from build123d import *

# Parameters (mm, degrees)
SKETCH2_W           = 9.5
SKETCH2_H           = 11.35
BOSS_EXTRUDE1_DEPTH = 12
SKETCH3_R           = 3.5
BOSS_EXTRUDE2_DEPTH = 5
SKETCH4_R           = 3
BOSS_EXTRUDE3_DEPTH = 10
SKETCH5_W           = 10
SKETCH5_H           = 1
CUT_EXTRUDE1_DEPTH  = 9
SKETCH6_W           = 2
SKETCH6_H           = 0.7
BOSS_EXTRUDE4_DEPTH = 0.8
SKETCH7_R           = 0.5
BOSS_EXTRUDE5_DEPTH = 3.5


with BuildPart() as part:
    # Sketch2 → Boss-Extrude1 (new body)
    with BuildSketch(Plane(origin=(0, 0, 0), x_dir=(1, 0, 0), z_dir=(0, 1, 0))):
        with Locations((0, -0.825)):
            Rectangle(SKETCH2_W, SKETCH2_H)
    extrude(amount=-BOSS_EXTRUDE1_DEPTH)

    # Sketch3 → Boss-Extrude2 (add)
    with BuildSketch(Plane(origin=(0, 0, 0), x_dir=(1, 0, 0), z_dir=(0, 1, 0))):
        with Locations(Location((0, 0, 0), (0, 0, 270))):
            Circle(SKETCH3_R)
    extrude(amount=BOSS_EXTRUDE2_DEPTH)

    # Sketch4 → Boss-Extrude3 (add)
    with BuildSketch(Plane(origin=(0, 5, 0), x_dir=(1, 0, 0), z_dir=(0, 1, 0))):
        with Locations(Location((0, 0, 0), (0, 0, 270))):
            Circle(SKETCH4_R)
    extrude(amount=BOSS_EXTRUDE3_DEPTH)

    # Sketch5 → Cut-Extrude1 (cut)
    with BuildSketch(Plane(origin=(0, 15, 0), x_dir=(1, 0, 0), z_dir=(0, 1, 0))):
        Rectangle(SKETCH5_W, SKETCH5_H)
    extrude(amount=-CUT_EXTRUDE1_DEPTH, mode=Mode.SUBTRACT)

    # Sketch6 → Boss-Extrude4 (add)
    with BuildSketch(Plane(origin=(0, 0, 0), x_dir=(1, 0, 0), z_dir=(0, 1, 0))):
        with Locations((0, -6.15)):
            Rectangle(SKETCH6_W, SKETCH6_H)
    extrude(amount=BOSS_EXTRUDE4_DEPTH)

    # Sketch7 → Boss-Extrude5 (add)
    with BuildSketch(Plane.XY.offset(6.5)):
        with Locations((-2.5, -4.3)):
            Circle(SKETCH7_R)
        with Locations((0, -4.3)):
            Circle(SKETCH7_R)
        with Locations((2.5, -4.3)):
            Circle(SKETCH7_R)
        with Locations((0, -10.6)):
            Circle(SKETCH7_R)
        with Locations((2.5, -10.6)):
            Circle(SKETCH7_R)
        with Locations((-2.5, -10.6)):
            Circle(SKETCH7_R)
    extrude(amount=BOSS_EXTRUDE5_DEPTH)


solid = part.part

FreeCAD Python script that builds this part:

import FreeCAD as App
import Part
import Sketcher
Q = App.Units.Quantity

doc = App.newDocument("Part")
body = doc.addObject("PartDesign::Body", "Body")

# Sketch on XZ plane
sketch1 = body.newObject("Sketcher::SketchObject", "Sketch")
sketch1.AttachmentSupport = (doc.getObject("XZ_Plane"), [""])
sketch1.MapMode = "FlatFace"
sketch1.addGeometry(Part.LineSegment(App.Vector(-5, -5, 0), App.Vector(-5, 6, 0)), False)
sketch1.addGeometry(Part.LineSegment(App.Vector(-5, 6, 0), App.Vector(5, 6, 0)), False)
sketch1.addGeometry(Part.LineSegment(App.Vector(5, 6, 0), App.Vector(5, -5, 0)), False)
sketch1.addGeometry(Part.LineSegment(App.Vector(5, -5, 0), App.Vector(-5, -5, 0)), False)
sketch1.addConstraint(Sketcher.Constraint("Coincident", 0, 2, 1, 1))
sketch1.addConstraint(Sketcher.Constraint("Coincident", 1, 2, 2, 1))
sketch1.addConstraint(Sketcher.Constraint("Coincident", 2, 2, 3, 1))
sketch1.addConstraint(Sketcher.Constraint("Coincident", 3, 2, 0, 1))
sketch1.addConstraint(Sketcher.Constraint("Vertical", 0))
sketch1.addConstraint(Sketcher.Constraint("Horizontal", 1))
sketch1.addConstraint(Sketcher.Constraint("Vertical", 2))
sketch1.addConstraint(Sketcher.Constraint("Horizontal", 3))
sketch1.addConstraint(Sketcher.Constraint("DistanceX", 1, 1, 1, 2, Q("9.5 mm")))
sketch1.addConstraint(Sketcher.Constraint("DistanceY", 0, 1, 0, 2, Q("11.35 mm")))
sketch1.addConstraint(Sketcher.Constraint("DistanceY", -1, 1, 0, 2, Q("6.5 mm")))
sketch1.addConstraint(Sketcher.Constraint("DistanceX", 0, 2, -1, 1, Q("4.75 mm")))
pad1 = body.newObject("PartDesign::Pad", "Pad")
pad1.Profile = sketch1
pad1.Length = 12

# Sketch on XZ plane
sketch2 = body.newObject("Sketcher::SketchObject", "Sketch001")
sketch2.AttachmentSupport = (doc.getObject("XZ_Plane"), [""])
sketch2.MapMode = "FlatFace"
sketch2.addGeometry(Part.Circle(App.Vector(0, 0, 0), App.Vector(0, 0, 1), 3.5), False)
sketch2.addConstraint(Sketcher.Constraint("Coincident", 0, 3, -1, 1))
sketch2.addConstraint(Sketcher.Constraint("Diameter", 0, Q("7 mm")))
pad2 = body.newObject("PartDesign::Pad", "Pad001")
pad2.Profile = sketch2
pad2.Length = 5
pad2.Reversed = True

# Sketch on XZ plane
sketch3 = body.newObject("Sketcher::SketchObject", "Sketch002")
sketch3.AttachmentSupport = (doc.getObject("XZ_Plane"), [""])
sketch3.MapMode = "FlatFace"
sketch3.AttachmentOffset = App.Placement(App.Vector(0, 0, -5), App.Rotation())
sketch3.addGeometry(Part.Circle(App.Vector(0, 0, 0), App.Vector(0, 0, 1), 3), False)
sketch3.addConstraint(Sketcher.Constraint("Coincident", 0, 3, -1, 1))
sketch3.addConstraint(Sketcher.Constraint("Diameter", 0, Q("6 mm")))
pad3 = body.newObject("PartDesign::Pad", "Pad002")
pad3.Profile = sketch3
pad3.Length = 10
pad3.Reversed = True

# Sketch on XZ plane
sketch4 = body.newObject("Sketcher::SketchObject", "Sketch003")
sketch4.AttachmentSupport = (doc.getObject("XZ_Plane"), [""])
sketch4.MapMode = "FlatFace"
sketch4.AttachmentOffset = App.Placement(App.Vector(0, 0, -15), App.Rotation())
sketch4.addGeometry(Part.LineSegment(App.Vector(-5, -0.5, 0), App.Vector(-5, 0.5, 0)), False)
sketch4.addGeometry(Part.LineSegment(App.Vector(-5, 0.5, 0), App.Vector(5, 0.5, 0)), False)
sketch4.addGeometry(Part.LineSegment(App.Vector(5, 0.5, 0), App.Vector(5, -0.5, 0)), False)
sketch4.addGeometry(Part.LineSegment(App.Vector(5, -0.5, 0), App.Vector(-5, -0.5, 0)), False)
sketch4.addConstraint(Sketcher.Constraint("Coincident", 0, 2, 1, 1))
sketch4.addConstraint(Sketcher.Constraint("Coincident", 1, 2, 2, 1))
sketch4.addConstraint(Sketcher.Constraint("Coincident", 2, 2, 3, 1))
sketch4.addConstraint(Sketcher.Constraint("Coincident", 3, 2, 0, 1))
sketch4.addConstraint(Sketcher.Constraint("Vertical", 0))
sketch4.addConstraint(Sketcher.Constraint("Horizontal", 1))
sketch4.addConstraint(Sketcher.Constraint("Vertical", 2))
sketch4.addConstraint(Sketcher.Constraint("Horizontal", 3))
sketch4.addConstraint(Sketcher.Constraint("Symmetric", 0, 2, 2, 2, -1, 1))
sketch4.addConstraint(Sketcher.Constraint("DistanceX", 1, 1, 1, 2, Q("10 mm")))
sketch4.addConstraint(Sketcher.Constraint("DistanceY", 0, 1, 0, 2, Q("1 mm")))
pocket1 = body.newObject("PartDesign::Pocket", "Pocket")
pocket1.Profile = sketch4
pocket1.Length = 9
pocket1.Reversed = True

# Sketch on XZ plane
sketch5 = body.newObject("Sketcher::SketchObject", "Sketch004")
sketch5.AttachmentSupport = (doc.getObject("XZ_Plane"), [""])
sketch5.MapMode = "FlatFace"
sketch5.addGeometry(Part.LineSegment(App.Vector(-1, 5.8, 0), App.Vector(-1, 6.5, 0)), False)
sketch5.addGeometry(Part.LineSegment(App.Vector(-1, 6.5, 0), App.Vector(1, 6.5, 0)), False)
sketch5.addGeometry(Part.LineSegment(App.Vector(1, 6.5, 0), App.Vector(1, 5.8, 0)), False)
sketch5.addGeometry(Part.LineSegment(App.Vector(1, 5.8, 0), App.Vector(-1, 5.8, 0)), False)
sketch5.addConstraint(Sketcher.Constraint("Coincident", 0, 2, 1, 1))
sketch5.addConstraint(Sketcher.Constraint("Coincident", 1, 2, 2, 1))
sketch5.addConstraint(Sketcher.Constraint("Coincident", 2, 2, 3, 1))
sketch5.addConstraint(Sketcher.Constraint("Coincident", 3, 2, 0, 1))
sketch5.addConstraint(Sketcher.Constraint("Vertical", 0))
sketch5.addConstraint(Sketcher.Constraint("Horizontal", 1))
sketch5.addConstraint(Sketcher.Constraint("Vertical", 2))
sketch5.addConstraint(Sketcher.Constraint("Horizontal", 3))
sketch5.addConstraint(Sketcher.Constraint("DistanceX", 1, 1, 1, 2, Q("2 mm")))
sketch5.addConstraint(Sketcher.Constraint("DistanceY", 0, 1, 0, 2, Q("0.7 mm")))
sketch5.addConstraint(Sketcher.Constraint("DistanceX", 0, 2, -1, 1, Q("1 mm")))
sketch5.addConstraint(Sketcher.Constraint("DistanceY", -1, 1, 0, 2, Q("6.5 mm")))
pad4 = body.newObject("PartDesign::Pad", "Pad003")
pad4.Profile = sketch5
pad4.Length = 0.8
pad4.Reversed = True

# Sketch on XY plane
sketch6 = body.newObject("Sketcher::SketchObject", "Sketch005")
sketch6.AttachmentSupport = (doc.getObject("XY_Plane"), [""])
sketch6.MapMode = "FlatFace"
sketch6.AttachmentOffset = App.Placement(App.Vector(0, 0, 6.5), App.Rotation())
sketch6.addGeometry(Part.Circle(App.Vector(-2.5, -4.3, 0), App.Vector(0, 0, 1), 0.5), False)
sketch6.addGeometry(Part.Circle(App.Vector(0, -4.3, 0), App.Vector(0, 0, 1), 0.5), False)
sketch6.addGeometry(Part.Circle(App.Vector(2.5, -4.3, 0), App.Vector(0, 0, 1), 0.5), False)
sketch6.addGeometry(Part.Circle(App.Vector(0, -10.6, 0), App.Vector(0, 0, 1), 0.5), False)
sketch6.addGeometry(Part.Circle(App.Vector(2.5, -10.6, 0), App.Vector(0, 0, 1), 0.5), False)
sketch6.addGeometry(Part.Circle(App.Vector(-2.5, -10.6, 0), App.Vector(0, 0, 1), 0.5), False)
sketch6.addConstraint(Sketcher.Constraint("Equal", 0, 1))
sketch6.addConstraint(Sketcher.Constraint("Equal", 1, 2))
sketch6.addConstraint(Sketcher.Constraint("Equal", 2, 3))
sketch6.addConstraint(Sketcher.Constraint("Equal", 3, 4))
sketch6.addConstraint(Sketcher.Constraint("Equal", 4, 5))
sketch6.addConstraint(Sketcher.Constraint("Symmetric", 0, 3, 2, 3, -2))
sketch6.addConstraint(Sketcher.Constraint("Symmetric", 4, 3, 5, 3, -2))
sketch6.addConstraint(Sketcher.Constraint("PointOnObject", 1, 3, -2))
sketch6.addConstraint(Sketcher.Constraint("PointOnObject", 3, 3, -2))
sketch6.addConstraint(Sketcher.Constraint("Horizontal", 0, 3, 1, 3))
sketch6.addConstraint(Sketcher.Constraint("Horizontal", 3, 3, 4, 3))
sketch6.addConstraint(Sketcher.Constraint("Vertical", 2, 3, 4, 3))
sketch6.addConstraint(Sketcher.Constraint("Diameter", 0, Q("1 mm")))
sketch6.addConstraint(Sketcher.Constraint("DistanceX", 0, 3, 2, 3, Q("5 mm")))
sketch6.addConstraint(Sketcher.Constraint("DistanceY", 0, 3, -1, 1, Q("4.3 mm")))
sketch6.addConstraint(Sketcher.Constraint("DistanceY", 3, 3, -1, 1, Q("10.6 mm")))
pad5 = body.newObject("PartDesign::Pad", "Pad004")
pad5.Profile = sketch6
pad5.Length = 3.5

doc.recompute()
